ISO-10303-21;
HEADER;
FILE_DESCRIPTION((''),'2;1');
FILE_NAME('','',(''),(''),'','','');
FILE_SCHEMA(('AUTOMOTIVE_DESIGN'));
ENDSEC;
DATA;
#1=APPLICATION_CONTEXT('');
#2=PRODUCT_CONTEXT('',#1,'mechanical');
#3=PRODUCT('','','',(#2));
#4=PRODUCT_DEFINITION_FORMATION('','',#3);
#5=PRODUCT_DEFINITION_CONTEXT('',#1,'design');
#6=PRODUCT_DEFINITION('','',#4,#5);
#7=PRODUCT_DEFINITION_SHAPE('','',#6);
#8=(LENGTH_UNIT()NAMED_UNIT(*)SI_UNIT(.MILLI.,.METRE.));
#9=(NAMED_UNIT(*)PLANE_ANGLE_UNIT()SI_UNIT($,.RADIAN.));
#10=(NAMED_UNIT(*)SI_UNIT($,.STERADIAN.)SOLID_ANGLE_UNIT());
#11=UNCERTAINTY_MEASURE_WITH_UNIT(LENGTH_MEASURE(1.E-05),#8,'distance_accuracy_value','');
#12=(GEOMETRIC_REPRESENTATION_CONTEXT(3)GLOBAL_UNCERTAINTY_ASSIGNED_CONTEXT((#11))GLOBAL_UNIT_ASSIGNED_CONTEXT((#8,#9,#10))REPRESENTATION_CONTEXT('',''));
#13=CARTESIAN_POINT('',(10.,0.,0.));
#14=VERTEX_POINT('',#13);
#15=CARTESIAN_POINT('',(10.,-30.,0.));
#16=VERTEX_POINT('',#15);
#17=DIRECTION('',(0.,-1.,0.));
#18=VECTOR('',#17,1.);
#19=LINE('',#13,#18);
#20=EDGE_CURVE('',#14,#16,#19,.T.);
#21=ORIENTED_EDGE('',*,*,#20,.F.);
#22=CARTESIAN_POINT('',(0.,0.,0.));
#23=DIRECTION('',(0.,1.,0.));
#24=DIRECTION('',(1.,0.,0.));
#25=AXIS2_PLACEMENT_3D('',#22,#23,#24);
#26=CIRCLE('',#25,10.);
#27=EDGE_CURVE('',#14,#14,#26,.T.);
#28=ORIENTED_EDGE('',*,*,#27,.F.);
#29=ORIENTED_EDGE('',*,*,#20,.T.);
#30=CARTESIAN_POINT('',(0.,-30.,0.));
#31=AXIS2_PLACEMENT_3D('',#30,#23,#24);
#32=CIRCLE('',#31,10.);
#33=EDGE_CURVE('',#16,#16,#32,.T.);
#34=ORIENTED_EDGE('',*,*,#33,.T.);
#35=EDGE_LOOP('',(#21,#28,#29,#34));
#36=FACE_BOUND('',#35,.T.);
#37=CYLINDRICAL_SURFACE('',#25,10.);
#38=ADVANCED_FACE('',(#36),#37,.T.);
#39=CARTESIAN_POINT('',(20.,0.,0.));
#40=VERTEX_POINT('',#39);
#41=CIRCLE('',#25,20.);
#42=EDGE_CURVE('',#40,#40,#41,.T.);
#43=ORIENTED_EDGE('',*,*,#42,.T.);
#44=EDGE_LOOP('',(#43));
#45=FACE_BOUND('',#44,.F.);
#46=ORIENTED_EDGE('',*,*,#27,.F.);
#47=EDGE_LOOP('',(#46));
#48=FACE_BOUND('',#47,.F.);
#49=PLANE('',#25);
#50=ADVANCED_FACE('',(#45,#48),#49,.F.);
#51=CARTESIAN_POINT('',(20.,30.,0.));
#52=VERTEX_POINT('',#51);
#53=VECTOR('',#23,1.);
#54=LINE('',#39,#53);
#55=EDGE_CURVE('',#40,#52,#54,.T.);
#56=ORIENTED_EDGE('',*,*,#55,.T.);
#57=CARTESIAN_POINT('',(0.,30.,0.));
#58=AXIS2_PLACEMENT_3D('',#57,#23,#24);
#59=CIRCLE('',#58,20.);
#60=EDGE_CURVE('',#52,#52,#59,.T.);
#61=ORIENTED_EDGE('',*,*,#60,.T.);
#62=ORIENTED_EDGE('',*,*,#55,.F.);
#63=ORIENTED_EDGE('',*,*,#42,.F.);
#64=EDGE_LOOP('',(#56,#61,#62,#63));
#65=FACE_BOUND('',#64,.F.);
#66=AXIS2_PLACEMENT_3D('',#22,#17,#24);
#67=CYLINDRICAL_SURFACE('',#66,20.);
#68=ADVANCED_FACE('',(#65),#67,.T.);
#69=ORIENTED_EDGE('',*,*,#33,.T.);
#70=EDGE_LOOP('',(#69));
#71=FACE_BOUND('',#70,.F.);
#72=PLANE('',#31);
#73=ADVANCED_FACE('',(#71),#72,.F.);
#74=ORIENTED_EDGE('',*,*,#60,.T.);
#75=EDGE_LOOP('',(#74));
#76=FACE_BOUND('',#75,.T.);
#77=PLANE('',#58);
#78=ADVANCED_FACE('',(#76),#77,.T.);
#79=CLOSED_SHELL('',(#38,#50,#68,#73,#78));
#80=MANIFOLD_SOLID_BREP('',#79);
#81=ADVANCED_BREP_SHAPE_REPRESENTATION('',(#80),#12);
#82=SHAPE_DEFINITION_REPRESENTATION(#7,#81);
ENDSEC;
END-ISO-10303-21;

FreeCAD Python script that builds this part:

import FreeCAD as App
import Part
import Sketcher
from FreeCAD import Vector
Q = App.Units.Quantity

doc = App.newDocument("Part")
body = doc.addObject("PartDesign::Body", "Body")

# Sketch on XZ plane
sketch1 = body.newObject("Sketcher::SketchObject", "Sketch")
sketch1.AttachmentSupport = (doc.getObject("XZ_Plane"), [""])
sketch1.MapMode = "FlatFace"
sketch1.addGeometry(Part.Circle(Vector(0, 0, 0), Vector(0, 0, 1), 20), False)
sketch1.addConstraint([
    Sketcher.Constraint("Coincident", 0, 3, -1, 1),
    Sketcher.Constraint("Diameter", 0, Q("40 mm")),
])
pad1 = body.newObject("PartDesign::Pad", "Pad")
pad1.Profile = sketch1
pad1.Length = 30
pad1.Reversed = True

# Sketch on XZ plane
sketch2 = body.newObject("Sketcher::SketchObject", "Sketch001")
sketch2.AttachmentSupport = (doc.getObject("XZ_Plane"), [""])
sketch2.MapMode = "FlatFace"
sketch2.addGeometry(Part.Circle(Vector(0, 0, 0), Vector(0, 0, 1), 10), False)
sketch2.addConstraint([
    Sketcher.Constraint("Coincident", 0, 3, -1, 1),
    Sketcher.Constraint("Diameter", 0, Q("20 mm")),
])
pad2 = body.newObject("PartDesign::Pad", "Pad001")
pad2.Profile = sketch2
pad2.Length = 30

doc.recompute()
